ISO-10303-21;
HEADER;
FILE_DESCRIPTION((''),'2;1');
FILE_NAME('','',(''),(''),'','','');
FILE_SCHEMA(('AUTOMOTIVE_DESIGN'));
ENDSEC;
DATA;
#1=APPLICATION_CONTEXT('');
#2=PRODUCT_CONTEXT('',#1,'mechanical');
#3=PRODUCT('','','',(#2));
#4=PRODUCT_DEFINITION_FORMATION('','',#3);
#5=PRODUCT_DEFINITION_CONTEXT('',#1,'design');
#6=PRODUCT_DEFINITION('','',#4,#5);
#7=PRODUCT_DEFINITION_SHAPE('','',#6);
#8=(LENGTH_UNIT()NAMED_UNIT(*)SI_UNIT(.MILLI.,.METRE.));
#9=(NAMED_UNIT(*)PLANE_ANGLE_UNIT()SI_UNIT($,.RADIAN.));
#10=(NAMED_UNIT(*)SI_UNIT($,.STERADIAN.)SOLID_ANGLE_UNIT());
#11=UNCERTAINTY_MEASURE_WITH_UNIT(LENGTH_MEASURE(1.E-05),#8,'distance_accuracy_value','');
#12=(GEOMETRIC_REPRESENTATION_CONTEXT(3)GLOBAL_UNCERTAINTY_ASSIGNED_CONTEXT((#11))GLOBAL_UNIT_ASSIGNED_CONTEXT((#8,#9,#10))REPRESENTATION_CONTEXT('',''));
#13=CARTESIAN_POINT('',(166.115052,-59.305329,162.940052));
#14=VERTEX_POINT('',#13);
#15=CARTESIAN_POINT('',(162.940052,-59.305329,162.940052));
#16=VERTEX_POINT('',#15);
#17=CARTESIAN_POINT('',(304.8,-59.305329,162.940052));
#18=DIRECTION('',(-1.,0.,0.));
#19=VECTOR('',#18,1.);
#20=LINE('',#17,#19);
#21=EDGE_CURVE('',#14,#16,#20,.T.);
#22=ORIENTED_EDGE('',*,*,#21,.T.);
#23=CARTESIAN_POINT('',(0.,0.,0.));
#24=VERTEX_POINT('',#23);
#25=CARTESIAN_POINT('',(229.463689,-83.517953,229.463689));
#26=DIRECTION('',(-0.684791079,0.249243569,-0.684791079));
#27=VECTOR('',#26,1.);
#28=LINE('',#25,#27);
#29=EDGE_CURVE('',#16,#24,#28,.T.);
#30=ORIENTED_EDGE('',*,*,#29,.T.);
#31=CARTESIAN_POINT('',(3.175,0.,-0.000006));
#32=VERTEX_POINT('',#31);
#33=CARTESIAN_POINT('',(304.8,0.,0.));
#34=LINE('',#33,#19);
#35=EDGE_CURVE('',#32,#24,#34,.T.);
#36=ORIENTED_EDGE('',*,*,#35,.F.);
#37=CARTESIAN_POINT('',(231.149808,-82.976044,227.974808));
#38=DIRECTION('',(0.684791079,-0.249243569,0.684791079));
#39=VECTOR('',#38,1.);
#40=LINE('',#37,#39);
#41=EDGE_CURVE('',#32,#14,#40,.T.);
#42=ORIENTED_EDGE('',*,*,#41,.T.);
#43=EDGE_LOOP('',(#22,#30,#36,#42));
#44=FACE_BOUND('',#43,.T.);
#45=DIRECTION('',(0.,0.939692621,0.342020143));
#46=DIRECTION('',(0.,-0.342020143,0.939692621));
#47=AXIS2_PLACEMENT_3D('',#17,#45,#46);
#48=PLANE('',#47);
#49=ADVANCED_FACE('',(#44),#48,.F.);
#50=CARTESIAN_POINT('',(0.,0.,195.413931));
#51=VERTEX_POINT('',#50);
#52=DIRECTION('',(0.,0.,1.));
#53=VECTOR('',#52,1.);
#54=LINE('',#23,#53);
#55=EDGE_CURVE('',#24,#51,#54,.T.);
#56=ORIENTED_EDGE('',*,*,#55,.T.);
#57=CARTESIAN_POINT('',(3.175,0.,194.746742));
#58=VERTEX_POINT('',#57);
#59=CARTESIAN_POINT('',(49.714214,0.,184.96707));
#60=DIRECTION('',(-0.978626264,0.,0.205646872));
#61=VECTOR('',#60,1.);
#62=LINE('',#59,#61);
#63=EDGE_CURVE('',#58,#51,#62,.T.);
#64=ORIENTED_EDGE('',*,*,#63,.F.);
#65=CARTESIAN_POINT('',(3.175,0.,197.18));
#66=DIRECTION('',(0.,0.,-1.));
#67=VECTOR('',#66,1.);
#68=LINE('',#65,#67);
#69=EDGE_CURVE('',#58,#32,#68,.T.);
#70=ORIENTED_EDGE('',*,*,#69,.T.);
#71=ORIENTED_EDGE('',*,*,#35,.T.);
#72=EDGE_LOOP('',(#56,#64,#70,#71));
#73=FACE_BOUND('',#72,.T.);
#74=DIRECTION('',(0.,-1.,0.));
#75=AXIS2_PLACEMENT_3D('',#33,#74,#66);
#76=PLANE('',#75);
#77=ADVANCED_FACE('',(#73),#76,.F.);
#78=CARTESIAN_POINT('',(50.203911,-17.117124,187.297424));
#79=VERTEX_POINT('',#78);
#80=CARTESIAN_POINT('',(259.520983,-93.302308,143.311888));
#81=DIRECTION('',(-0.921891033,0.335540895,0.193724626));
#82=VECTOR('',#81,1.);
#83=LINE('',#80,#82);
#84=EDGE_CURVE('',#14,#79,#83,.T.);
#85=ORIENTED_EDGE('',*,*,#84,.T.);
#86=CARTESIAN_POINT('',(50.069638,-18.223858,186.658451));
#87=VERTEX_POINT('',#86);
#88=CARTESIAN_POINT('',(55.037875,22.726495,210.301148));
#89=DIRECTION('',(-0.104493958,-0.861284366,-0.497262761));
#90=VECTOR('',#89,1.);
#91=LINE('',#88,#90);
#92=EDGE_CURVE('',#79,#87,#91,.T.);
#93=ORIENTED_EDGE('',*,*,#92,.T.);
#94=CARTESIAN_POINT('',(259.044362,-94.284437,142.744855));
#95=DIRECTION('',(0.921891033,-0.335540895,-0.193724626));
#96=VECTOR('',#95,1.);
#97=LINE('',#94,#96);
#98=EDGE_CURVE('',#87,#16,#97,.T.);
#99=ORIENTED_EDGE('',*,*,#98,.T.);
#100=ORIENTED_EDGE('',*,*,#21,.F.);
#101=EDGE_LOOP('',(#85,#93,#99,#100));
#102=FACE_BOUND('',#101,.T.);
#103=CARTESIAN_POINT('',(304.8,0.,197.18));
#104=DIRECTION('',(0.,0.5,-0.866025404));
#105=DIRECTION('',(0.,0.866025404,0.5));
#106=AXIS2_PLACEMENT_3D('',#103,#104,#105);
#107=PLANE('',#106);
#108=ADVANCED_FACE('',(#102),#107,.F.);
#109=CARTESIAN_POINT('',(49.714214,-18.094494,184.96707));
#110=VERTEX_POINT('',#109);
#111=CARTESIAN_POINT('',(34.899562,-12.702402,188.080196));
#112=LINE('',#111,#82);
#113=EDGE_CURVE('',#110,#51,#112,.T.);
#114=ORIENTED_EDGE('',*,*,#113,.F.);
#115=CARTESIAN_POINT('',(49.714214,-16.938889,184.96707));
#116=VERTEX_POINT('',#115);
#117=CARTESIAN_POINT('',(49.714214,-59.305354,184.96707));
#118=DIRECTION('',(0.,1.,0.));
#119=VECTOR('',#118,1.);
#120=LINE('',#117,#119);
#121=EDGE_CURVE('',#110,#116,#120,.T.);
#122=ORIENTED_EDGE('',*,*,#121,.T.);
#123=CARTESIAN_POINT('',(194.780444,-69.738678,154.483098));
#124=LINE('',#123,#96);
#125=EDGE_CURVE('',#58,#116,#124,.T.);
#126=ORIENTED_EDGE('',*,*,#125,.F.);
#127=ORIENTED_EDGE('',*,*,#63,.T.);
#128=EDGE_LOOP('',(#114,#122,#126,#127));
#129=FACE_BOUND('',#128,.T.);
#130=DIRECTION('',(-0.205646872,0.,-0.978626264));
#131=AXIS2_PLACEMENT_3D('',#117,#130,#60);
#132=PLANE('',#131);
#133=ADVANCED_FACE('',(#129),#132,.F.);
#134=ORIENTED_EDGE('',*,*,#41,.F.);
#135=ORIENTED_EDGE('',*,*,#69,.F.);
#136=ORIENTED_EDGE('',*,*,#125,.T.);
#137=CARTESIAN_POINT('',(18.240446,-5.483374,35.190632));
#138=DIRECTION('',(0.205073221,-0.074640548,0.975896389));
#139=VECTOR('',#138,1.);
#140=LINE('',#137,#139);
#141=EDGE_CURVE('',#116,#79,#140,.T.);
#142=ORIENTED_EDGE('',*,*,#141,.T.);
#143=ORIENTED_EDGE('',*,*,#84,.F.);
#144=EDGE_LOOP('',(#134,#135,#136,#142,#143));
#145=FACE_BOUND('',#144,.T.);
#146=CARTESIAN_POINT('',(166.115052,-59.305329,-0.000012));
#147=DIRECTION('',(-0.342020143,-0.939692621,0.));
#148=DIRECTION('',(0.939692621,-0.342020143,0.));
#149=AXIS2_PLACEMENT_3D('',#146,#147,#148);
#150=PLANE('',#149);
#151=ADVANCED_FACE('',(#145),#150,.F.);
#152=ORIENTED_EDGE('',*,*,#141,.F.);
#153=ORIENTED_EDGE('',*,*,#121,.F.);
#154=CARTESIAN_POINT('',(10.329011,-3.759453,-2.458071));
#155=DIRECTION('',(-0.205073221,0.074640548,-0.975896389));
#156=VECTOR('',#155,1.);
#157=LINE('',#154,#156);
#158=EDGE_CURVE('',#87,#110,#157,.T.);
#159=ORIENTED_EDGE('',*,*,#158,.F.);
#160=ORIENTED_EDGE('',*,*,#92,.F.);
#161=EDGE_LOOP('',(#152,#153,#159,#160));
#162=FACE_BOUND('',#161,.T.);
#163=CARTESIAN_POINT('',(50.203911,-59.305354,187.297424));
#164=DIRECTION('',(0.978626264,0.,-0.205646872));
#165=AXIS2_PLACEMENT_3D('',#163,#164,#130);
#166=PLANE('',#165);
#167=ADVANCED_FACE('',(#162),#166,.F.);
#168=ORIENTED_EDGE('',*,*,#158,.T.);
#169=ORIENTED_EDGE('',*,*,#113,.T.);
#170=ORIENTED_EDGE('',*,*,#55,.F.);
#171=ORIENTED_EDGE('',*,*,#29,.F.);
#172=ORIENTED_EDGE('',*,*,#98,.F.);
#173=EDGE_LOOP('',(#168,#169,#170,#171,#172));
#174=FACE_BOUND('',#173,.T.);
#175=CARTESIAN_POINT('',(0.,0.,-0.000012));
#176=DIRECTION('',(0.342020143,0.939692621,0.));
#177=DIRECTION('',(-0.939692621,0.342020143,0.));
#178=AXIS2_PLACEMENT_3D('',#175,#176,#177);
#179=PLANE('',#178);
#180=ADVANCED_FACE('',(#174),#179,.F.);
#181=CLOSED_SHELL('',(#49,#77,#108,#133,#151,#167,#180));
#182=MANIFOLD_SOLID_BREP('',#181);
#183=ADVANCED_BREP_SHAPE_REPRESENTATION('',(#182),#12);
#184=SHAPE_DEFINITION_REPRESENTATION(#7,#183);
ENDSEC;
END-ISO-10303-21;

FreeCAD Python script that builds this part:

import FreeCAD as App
import Part
import Sketcher

V = App.Vector
Q = App.Units.Quantity


def add_polygon(sketch, points):
    """Adds a closed chain of lines whose ends are joined by coincident constraints."""
    first, n = sketch.GeometryCount, len(points)
    for a, b in zip(points, points[1:] + points[:1]):
        sketch.addGeometry(Part.LineSegment(App.Vector(*a, 0), App.Vector(*b, 0)), False)
    for i in range(n):
        sketch.addConstraint(Sketcher.Constraint("Coincident", first + i, 2, first + (i + 1) % n, 1))

doc = App.newDocument("Part")
body = doc.addObject("PartDesign::Body", "Body")

# Sketch on YZ plane
sketch1 = body.newObject("Sketcher::SketchObject", "Sketch")
sketch1.AttachmentSupport = (doc.getObject("YZ_Plane"), [""])
sketch1.MapMode = "FlatFace"
add_polygon(sketch1, [(0, 0), (0, 197.18), (-59.305329, 162.940052)])  # lines 0-2
sketch1.addConstraint([
    Sketcher.Constraint("Vertical", 0),
    Sketcher.Constraint("Coincident", 2, 2, -1, 1),
    Sketcher.Constraint("Angle", 1, Q("-150 deg")),
    Sketcher.Constraint("Angle", 2, Q("-70 deg")),
    Sketcher.Constraint("DistanceY", 0, 1, 0, 2, 197.18),
])
pad1 = body.newObject("PartDesign::Pad", "Pad")
pad1.Profile = sketch1
pad1.Length = Q("12 in")

# Sketch on XY plane
sketch2 = body.newObject("Sketcher::SketchObject", "Sketch001")
sketch2.AttachmentSupport = (doc.getObject("XY_Plane"), [""])
sketch2.MapMode = "FlatFace"
add_polygon(sketch2, [(162.940052, -59.305329), (0, 0), (0, -59.305329)])  # lines 0-2
add_polygon(sketch2, [(3.175, 0), (166.115052, -59.305329), (304.8, -59.305329), (304.8, 0)])  # lines 3-6
sketch2.addConstraint([
    Sketcher.Constraint("Vertical", 1),
    Sketcher.Constraint("Horizontal", 2),
    Sketcher.Constraint("Horizontal", 4),
    Sketcher.Constraint("Vertical", 5),
    Sketcher.Constraint("Horizontal", 6),
    Sketcher.Constraint("Coincident", 0, 2, -1, 1),
    Sketcher.Constraint("PointOnObject", 5, 2, -1),
    Sketcher.Constraint("Parallel", 0, 3),
    Sketcher.Constraint("Horizontal", 2, 2, 3, 2),
    Sketcher.Constraint("DistanceX", -1, 1, 4, 2, Q("12 in")),
    Sketcher.Constraint("Angle", 0, Q("160 deg")),
    Sketcher.Constraint("DistanceX", 6, 2, 6, 1, Q("11.875 in")),
    Sketcher.Constraint("DistanceY", 1, 2, 1, 1, 59.305329),
])
pocket1 = body.newObject("PartDesign::Pocket", "Pocket")
pocket1.Profile = sketch2
pocket1.Type = "ThroughAll"
pocket1.Midplane = True

# Sketch on XZ plane
sketch3 = body.newObject("Sketcher::SketchObject", "Sketch002")
sketch3.AttachmentSupport = (doc.getObject("XZ_Plane"), [""])
sketch3.MapMode = "FlatFace"
add_polygon(sketch3, [(50.203911, 187.297424), (49.714214, 184.96707), (0, 195.413931), (0, 197.18), (3.175, 197.18)])  # lines 0-4
sketch3.addConstraint([
    Sketcher.Constraint("Vertical", 2),
    Sketcher.Constraint("Horizontal", 3),
    Sketcher.Constraint("PointOnObject", 1, 2, -2),
    Sketcher.Constraint("Perpendicular", 0, 1),
    Sketcher.Constraint("Parallel", 1, 4),
    Sketcher.Constraint("Distance", 1, Q("2 in")),
    Sketcher.Constraint("DistanceX", 3, 1, 3, 2, Q("0.125 in")),
    Sketcher.Constraint("Distance", 0, Q("0.09375 in")),
    Sketcher.Constraint("DistanceY", 2, 1, 2, 2, 1.766069),
    Sketcher.Constraint("DistanceY", -1, 1, 2, 2, 197.18),
])
pocket2 = body.newObject("PartDesign::Pocket", "Pocket001")
pocket2.Profile = sketch3
pocket2.Type = "ThroughAll"
pocket2.Reversed = True

doc.recompute()
